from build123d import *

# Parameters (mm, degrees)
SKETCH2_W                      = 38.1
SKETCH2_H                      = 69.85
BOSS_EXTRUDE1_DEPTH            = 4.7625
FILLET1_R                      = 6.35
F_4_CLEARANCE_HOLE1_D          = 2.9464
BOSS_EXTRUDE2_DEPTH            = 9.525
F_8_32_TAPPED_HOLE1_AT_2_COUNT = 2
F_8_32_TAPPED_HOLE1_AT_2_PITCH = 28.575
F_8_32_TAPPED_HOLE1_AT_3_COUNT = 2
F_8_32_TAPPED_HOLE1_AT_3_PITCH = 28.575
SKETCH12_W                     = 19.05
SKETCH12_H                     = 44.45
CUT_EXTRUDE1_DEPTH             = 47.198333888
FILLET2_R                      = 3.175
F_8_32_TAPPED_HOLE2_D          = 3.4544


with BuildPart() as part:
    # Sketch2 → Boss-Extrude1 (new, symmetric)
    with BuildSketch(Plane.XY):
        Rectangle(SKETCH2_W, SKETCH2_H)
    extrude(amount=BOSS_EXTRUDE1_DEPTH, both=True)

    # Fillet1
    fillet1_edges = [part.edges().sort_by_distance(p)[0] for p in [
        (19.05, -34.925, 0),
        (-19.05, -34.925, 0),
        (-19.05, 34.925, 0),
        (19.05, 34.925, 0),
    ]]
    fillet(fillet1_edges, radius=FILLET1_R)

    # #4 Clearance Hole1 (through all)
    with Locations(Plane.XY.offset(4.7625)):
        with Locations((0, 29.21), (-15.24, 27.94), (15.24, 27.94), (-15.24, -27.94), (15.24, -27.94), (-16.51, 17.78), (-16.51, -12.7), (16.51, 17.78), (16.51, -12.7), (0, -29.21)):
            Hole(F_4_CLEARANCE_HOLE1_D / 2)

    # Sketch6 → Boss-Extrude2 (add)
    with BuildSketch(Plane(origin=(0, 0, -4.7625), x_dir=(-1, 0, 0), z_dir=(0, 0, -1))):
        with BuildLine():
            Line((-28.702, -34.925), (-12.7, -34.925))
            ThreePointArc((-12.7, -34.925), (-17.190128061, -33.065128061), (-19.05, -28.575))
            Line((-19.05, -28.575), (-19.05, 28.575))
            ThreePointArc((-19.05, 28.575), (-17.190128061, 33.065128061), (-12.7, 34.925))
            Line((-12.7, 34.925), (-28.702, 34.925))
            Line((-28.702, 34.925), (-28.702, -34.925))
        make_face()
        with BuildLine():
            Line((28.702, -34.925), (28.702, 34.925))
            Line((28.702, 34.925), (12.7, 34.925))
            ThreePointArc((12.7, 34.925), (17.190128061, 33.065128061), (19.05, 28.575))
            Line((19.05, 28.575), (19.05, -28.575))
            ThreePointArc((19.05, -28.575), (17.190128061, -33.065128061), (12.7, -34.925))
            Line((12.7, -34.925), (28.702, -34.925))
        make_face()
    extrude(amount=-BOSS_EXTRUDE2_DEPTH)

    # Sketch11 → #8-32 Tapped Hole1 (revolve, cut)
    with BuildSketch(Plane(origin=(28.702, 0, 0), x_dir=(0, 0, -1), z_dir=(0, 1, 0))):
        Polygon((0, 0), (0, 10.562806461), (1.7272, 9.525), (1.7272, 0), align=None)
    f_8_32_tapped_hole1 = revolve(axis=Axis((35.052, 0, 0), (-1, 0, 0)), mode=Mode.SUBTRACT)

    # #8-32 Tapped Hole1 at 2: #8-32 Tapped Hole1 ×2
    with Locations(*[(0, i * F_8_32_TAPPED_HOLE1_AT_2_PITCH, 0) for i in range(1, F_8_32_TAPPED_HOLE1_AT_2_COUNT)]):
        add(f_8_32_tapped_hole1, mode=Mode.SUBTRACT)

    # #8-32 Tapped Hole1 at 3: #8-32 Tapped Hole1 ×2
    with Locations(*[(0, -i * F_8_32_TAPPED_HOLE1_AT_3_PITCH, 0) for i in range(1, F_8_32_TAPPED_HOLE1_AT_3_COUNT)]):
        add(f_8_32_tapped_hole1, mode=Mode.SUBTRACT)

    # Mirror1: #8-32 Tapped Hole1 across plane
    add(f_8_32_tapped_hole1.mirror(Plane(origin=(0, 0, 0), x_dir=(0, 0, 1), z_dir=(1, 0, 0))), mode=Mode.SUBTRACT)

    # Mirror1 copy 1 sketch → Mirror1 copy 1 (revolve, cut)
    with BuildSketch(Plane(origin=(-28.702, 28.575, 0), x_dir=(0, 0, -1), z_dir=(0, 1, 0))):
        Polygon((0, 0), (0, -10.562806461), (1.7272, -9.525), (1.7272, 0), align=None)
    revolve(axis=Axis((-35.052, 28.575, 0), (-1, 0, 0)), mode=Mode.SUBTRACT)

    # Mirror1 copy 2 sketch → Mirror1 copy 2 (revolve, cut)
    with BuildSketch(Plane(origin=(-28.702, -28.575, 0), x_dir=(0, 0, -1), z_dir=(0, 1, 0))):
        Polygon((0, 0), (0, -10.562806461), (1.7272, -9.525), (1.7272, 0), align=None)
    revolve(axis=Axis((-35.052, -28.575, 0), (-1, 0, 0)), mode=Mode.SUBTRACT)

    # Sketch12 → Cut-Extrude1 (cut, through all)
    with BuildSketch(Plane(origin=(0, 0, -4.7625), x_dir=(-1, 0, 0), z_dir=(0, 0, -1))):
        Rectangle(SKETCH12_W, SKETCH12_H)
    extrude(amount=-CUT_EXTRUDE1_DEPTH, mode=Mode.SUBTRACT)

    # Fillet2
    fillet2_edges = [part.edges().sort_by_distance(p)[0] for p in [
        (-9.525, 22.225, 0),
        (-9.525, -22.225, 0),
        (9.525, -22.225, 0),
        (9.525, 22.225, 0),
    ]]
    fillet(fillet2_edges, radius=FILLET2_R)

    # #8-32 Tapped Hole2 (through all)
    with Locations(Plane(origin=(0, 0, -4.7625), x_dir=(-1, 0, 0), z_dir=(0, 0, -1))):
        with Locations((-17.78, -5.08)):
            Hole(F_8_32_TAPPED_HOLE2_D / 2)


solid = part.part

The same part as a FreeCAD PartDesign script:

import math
import FreeCAD as App
import Part
import Sketcher
Q = App.Units.Quantity


def edges_at(feature, points):
    """Names of the edges that pass closest to the given points."""
    edges = feature.Shape.Edges
    near = lambda p: min(range(len(edges)), key=lambda i: edges[i].distToShape(Part.Vertex(*p))[0])
    return sorted({f"Edge{near(p) + 1}" for p in points})

doc = App.newDocument("Part")
body = doc.addObject("PartDesign::Body", "Body")

sketch1 = doc.addObject("Sketcher::SketchObject", "Sketch")
body.addObject(sketch1)
sketch1.AttachmentSupport = (doc.XY_Plane, [""])
sketch1.MapMode = "FlatFace"
sketch1.addGeometry(Part.LineSegment(App.Vector(-19, 35, 0), App.Vector(-19, -35, 0)), False)
sketch1.addGeometry(Part.LineSegment(App.Vector(-19, -35, 0), App.Vector(19, -35, 0)), False)
sketch1.addGeometry(Part.LineSegment(App.Vector(19, -35, 0), App.Vector(19, 35, 0)), False)
sketch1.addGeometry(Part.LineSegment(App.Vector(19, 35, 0), App.Vector(-19, 35, 0)), False)
sketch1.addConstraint(Sketcher.Constraint("Coincident", 0, 2, 1, 1))
sketch1.addConstraint(Sketcher.Constraint("Coincident", 1, 2, 2, 1))
sketch1.addConstraint(Sketcher.Constraint("Coincident", 2, 2, 3, 1))
sketch1.addConstraint(Sketcher.Constraint("Coincident", 3, 2, 0, 1))
sketch1.addConstraint(Sketcher.Constraint("Vertical", 0))
sketch1.addConstraint(Sketcher.Constraint("Horizontal", 1))
sketch1.addConstraint(Sketcher.Constraint("Vertical", 2))
sketch1.addConstraint(Sketcher.Constraint("Horizontal", 3))
sketch1.addConstraint(Sketcher.Constraint("Symmetric", 0, 2, 2, 2, -1, 1))
sketch1.addConstraint(Sketcher.Constraint("DistanceX", 1, 1, 1, 2, Q("1.5 in")))
sketch1.addConstraint(Sketcher.Constraint("DistanceY", 0, 2, 0, 1, Q("2.75 in")))
pad1 = doc.addObject("PartDesign::Pad", "Pad")
body.addObject(pad1)
pad1.Profile = sketch1
pad1.Length = Q("0.375 in")
pad1.Midplane = True
doc.recompute()

fillet = doc.addObject("PartDesign::Fillet", "Fillet")
body.addObject(fillet)
fillet.Base = (pad1, edges_at(pad1, [
    (19.05, -34.925, 0),
    (-19.05, -34.925, 0),
    (-19.05, 34.925, 0),
    (19.05, 34.925, 0),
]))
fillet.Radius = Q("0.25 in")

sketch2 = doc.addObject("Sketcher::SketchObject", "Sketch001")
body.addObject(sketch2)
sketch2.AttachmentSupport = (doc.XY_Plane, [""])
sketch2.MapMode = "FlatFace"
sketch2.AttachmentOffset = App.Placement(App.Vector(0, 0, 0.1875 * 25.4), App.Rotation())
sketch2.addGeometry(Part.Circle(App.Vector(0, 29.2, 0), App.Vector(0, 0, 1), 1.5), False)
sketch2.addGeometry(Part.Circle(App.Vector(-15.2, 27.9, 0), App.Vector(0, 0, 1), 1.5), False)
sketch2.addGeometry(Part.Circle(App.Vector(15.2, 27.9, 0), App.Vector(0, 0, 1), 1.5), False)
sketch2.addGeometry(Part.Circle(App.Vector(-15.2, -27.9, 0), App.Vector(0, 0, 1), 1.5), False)
sketch2.addGeometry(Part.Circle(App.Vector(15.2, -27.9, 0), App.Vector(0, 0, 1), 1.5), False)
sketch2.addGeometry(Part.Circle(App.Vector(-16.5, 17.8, 0), App.Vector(0, 0, 1), 1.5), False)
sketch2.addGeometry(Part.Circle(App.Vector(-16.5, -12.7, 0), App.Vector(0, 0, 1), 1.5), False)
sketch2.addGeometry(Part.Circle(App.Vector(16.5, 17.8, 0), App.Vector(0, 0, 1), 1.5), False)
sketch2.addGeometry(Part.Circle(App.Vector(16.5, -12.7, 0), App.Vector(0, 0, 1), 1.5), False)
sketch2.addGeometry(Part.Circle(App.Vector(0, -29.2, 0), App.Vector(0, 0, 1), 1.5), False)
sketch2.addConstraint(Sketcher.Constraint("Equal", 0, 1))
sketch2.addConstraint(Sketcher.Constraint("Equal", 1, 2))
sketch2.addConstraint(Sketcher.Constraint("Equal", 2, 3))
sketch2.addConstraint(Sketcher.Constraint("Equal", 3, 4))
sketch2.addConstraint(Sketcher.Constraint("Equal", 4, 5))
sketch2.addConstraint(Sketcher.Constraint("Equal", 5, 6))
sketch2.addConstraint(Sketcher.Constraint("Equal", 6, 7))
sketch2.addConstraint(Sketcher.Constraint("Equal", 7, 8))
sketch2.addConstraint(Sketcher.Constraint("Equal", 8, 9))
sketch2.addConstraint(Sketcher.Constraint("Symmetric", 2, 3, 3, 3, -1, 1))
sketch2.addConstraint(Sketcher.Constraint("Symmetric", 1, 3, 4, 3, -1, 1))
sketch2.addConstraint(Sketcher.Constraint("Symmetric", 0, 3, 9, 3, -1, 1))
sketch2.addConstraint(Sketcher.Constraint("Symmetric", 1, 3, 2, 3, -2))
sketch2.addConstraint(Sketcher.Constraint("Symmetric", 5, 3, 7, 3, -2))
sketch2.addConstraint(Sketcher.Constraint("Symmetric", 6, 3, 8, 3, -2))
sketch2.addConstraint(Sketcher.Constraint("PointOnObject", 0, 3, -2))
sketch2.addConstraint(Sketcher.Constraint("Vertical", 5, 3, 6, 3))
sketch2.addConstraint(Sketcher.Constraint("Diameter", 0, Q("0.116 in")))
sketch2.addConstraint(Sketcher.Constraint("DistanceX", 1, 3, -1, 1, Q("0.6 in")))
sketch2.addConstraint(Sketcher.Constraint("DistanceY", -1, 1, 1, 3, Q("1.1 in")))
sketch2.addConstraint(Sketcher.Constraint("DistanceY", -1, 1, 5, 3, Q("0.7 in")))
sketch2.addConstraint(Sketcher.Constraint("DistanceY", 6, 3, -1, 1, Q("0.5 in")))
sketch2.addConstraint(Sketcher.Constraint("DistanceX", 5, 3, 7, 3, Q("1.3 in")))
sketch2.addConstraint(Sketcher.Constraint("DistanceY", -1, 1, 0, 3, Q("1.15 in")))
doc.recompute()
hole = doc.addObject("PartDesign::Hole", "Hole")
body.addObject(hole)
hole.Profile = sketch2
hole.ThreadType = "None"
hole.Diameter = Q("0.116 in")
hole.DepthType = "ThroughAll"

sketch3 = doc.addObject("Sketcher::SketchObject", "Sketch002")
body.addObject(sketch3)
sketch3.AttachmentSupport = (doc.XY_Plane, [""])
sketch3.MapMode = "FlatFace"
sketch3.AttachmentOffset = App.Placement(App.Vector(0, 0, -0.1875 * 25.4), App.Rotation())
sketch3.addGeometry(Part.LineSegment(App.Vector(29, -35, 0), App.Vector(13, -35, 0)), False)
sketch3.addGeometry(Part.ArcOfCircle(Part.Circle(App.Vector(13, -29, 0), App.Vector(0, 0, 1), 6), math.radians(-90), math.radians(0)), False)
sketch3.addGeometry(Part.LineSegment(App.Vector(19, -29, 0), App.Vector(19, 29, 0)), False)
sketch3.addGeometry(Part.ArcOfCircle(Part.Circle(App.Vector(13, 29, 0), App.Vector(0, 0, 1), 6), math.radians(0), math.radians(90)), False)
sketch3.addGeometry(Part.LineSegment(App.Vector(13, 35, 0), App.Vector(29, 35, 0)), False)
sketch3.addGeometry(Part.LineSegment(App.Vector(29, 35, 0), App.Vector(29, -35, 0)), False)
sketch3.addGeometry(Part.LineSegment(App.Vector(-29, -35, 0), App.Vector(-29, 35, 0)), False)
sketch3.addGeometry(Part.LineSegment(App.Vector(-29, 35, 0), App.Vector(-13, 35, 0)), False)
sketch3.addGeometry(Part.ArcOfCircle(Part.Circle(App.Vector(-13, 29, 0), App.Vector(0, 0, 1), 6), math.radians(90), math.radians(180)), False)
sketch3.addGeometry(Part.LineSegment(App.Vector(-19, 29, 0), App.Vector(-19, -29, 0)), False)
sketch3.addGeometry(Part.ArcOfCircle(Part.Circle(App.Vector(-13, -29, 0), App.Vector(0, 0, 1), 6), math.radians(180), math.radians(270)), False)
sketch3.addGeometry(Part.LineSegment(App.Vector(-13, -35, 0), App.Vector(-29, -35, 0)), False)
sketch3.addConstraint(Sketcher.Constraint("Tangent", 0, 2, 1, 1))
sketch3.addConstraint(Sketcher.Constraint("Tangent", 1, 2, 2, 1))
sketch3.addConstraint(Sketcher.Constraint("Tangent", 2, 2, 3, 1))
sketch3.addConstraint(Sketcher.Constraint("Tangent", 3, 2, 4, 1))
sketch3.addConstraint(Sketcher.Constraint("Coincident", 4, 2, 5, 1))
sketch3.addConstraint(Sketcher.Constraint("Coincident", 5, 2, 0, 1))
sketch3.addConstraint(Sketcher.Constraint("Coincident", 6, 2, 7, 1))
sketch3.addConstraint(Sketcher.Constraint("Tangent", 7, 2, 8, 1))
sketch3.addConstraint(Sketcher.Constraint("Tangent", 8, 2, 9, 1))
sketch3.addConstraint(Sketcher.Constraint("Tangent", 9, 2, 10, 1))
sketch3.addConstraint(Sketcher.Constraint("Tangent", 10, 2, 11, 1))
sketch3.addConstraint(Sketcher.Constraint("Coincident", 11, 2, 6, 1))
sketch3.addConstraint(Sketcher.Constraint("Horizontal", 0))
sketch3.addConstraint(Sketcher.Constraint("Vertical", 2))
sketch3.addConstraint(Sketcher.Constraint("Horizontal", 4))
sketch3.addConstraint(Sketcher.Constraint("Vertical", 5))
sketch3.addConstraint(Sketcher.Constraint("Vertical", 6))
sketch3.addConstraint(Sketcher.Constraint("Horizontal", 7))
sketch3.addConstraint(Sketcher.Constraint("Vertical", 9))
sketch3.addConstraint(Sketcher.Constraint("Horizontal", 11))
sketch3.addConstraint(Sketcher.Constraint("Equal", 1, 3))
sketch3.addConstraint(Sketcher.Constraint("Equal", 3, 8))
sketch3.addConstraint(Sketcher.Constraint("Equal", 8, 10))
sketch3.addConstraint(Sketcher.Constraint("Symmetric", 1, 3, 8, 3, -1, 1))
sketch3.addConstraint(Sketcher.Constraint("Symmetric", 4, 2, 11, 2, -1, 1))
sketch3.addConstraint(Sketcher.Constraint("Horizontal", 3, 3, 8, 3))
sketch3.addConstraint(Sketcher.Constraint("Radius", 1, Q("0.25 in")))
sketch3.addConstraint(Sketcher.Constraint("DistanceX", 8, 3, 3, 3, Q("1 in")))
sketch3.addConstraint(Sketcher.Constraint("DistanceX", 0, 2, 0, 1, Q("0.63 in")))
sketch3.addConstraint(Sketcher.Constraint("DistanceY", 2, 1, 2, 2, Q("2.25 in")))
pad2 = doc.addObject("PartDesign::Pad", "Pad001")
body.addObject(pad2)
pad2.Profile = sketch3
pad2.Length = Q("0.375 in")

sketch4 = doc.addObject("Sketcher::SketchObject", "Sketch003")
body.addObject(sketch4)
sketch4.AttachmentSupport = (doc.XZ_Plane, [""])
sketch4.MapMode = "FlatFace"
sketch4.addGeometry(Part.LineSegment(App.Vector(18.1, 0, 0), App.Vector(28.7, 0, 0)), False)
sketch4.addGeometry(Part.LineSegment(App.Vector(28.7, 0, 0), App.Vector(28.7, -1.7, 0)), False)
sketch4.addGeometry(Part.LineSegment(App.Vector(28.7, -1.7, 0), App.Vector(19.2, -1.7, 0)), False)
sketch4.addGeometry(Part.LineSegment(App.Vector(19.2, -1.7, 0), App.Vector(18.1, 0, 0)), False)
sketch4.addConstraint(Sketcher.Constraint("Coincident", 0, 2, 1, 1))
sketch4.addConstraint(Sketcher.Constraint("Coincident", 1, 2, 2, 1))
sketch4.addConstraint(Sketcher.Constraint("Coincident", 2, 2, 3, 1))
sketch4.addConstraint(Sketcher.Constraint("Coincident", 3, 2, 0, 1))
sketch4.addConstraint(Sketcher.Constraint("Horizontal", 0))
sketch4.addConstraint(Sketcher.Constraint("Vertical", 1))
sketch4.addConstraint(Sketcher.Constraint("Horizontal", 2))
sketch4.addConstraint(Sketcher.Constraint("PointOnObject", 0, 2, -1))
sketch4.addConstraint(Sketcher.Constraint("Angle", 3, Q("121 deg")))
sketch4.addConstraint(Sketcher.Constraint("DistanceX", 2, 2, 2, 1, Q("0.375 in")))
sketch4.addConstraint(Sketcher.Constraint("DistanceY", 1, 2, 1, 1, Q("0.068 in")))
sketch4.addConstraint(Sketcher.Constraint("DistanceX", -1, 1, 0, 2, Q("1.13 in")))
groove = doc.addObject("PartDesign::Groove", "Groove")
body.addObject(groove)
groove.Profile = sketch4
groove.ReferenceAxis = (sketch4, ["H_Axis"])
groove.Angle = 360
doc.recompute()

linearpattern = doc.addObject("PartDesign::LinearPattern", "LinearPattern")
body.addObject(linearpattern)
linearpattern.Originals = [groove]
linearpattern.Direction = (doc.Y_Axis, [""])
linearpattern.Mode = "offset"
linearpattern.Offset = Q("1.125 in")
linearpattern.Occurrences = 2
body.Tip = linearpattern
doc.recompute()

linearpattern2 = doc.addObject("PartDesign::LinearPattern", "LinearPattern001")
body.addObject(linearpattern2)
linearpattern2.Originals = [groove]
linearpattern2.Direction = (doc.Y_Axis, [""])
linearpattern2.Mode = "offset"
linearpattern2.Offset = Q("1.125 in")
linearpattern2.Occurrences = 2
linearpattern2.Reversed = True
body.Tip = linearpattern2
doc.recompute()

mirrored = doc.addObject("PartDesign::Mirrored", "Mirrored")
body.addObject(mirrored)
mirrored.Originals = [groove]
mirrored.MirrorPlane = (doc.YZ_Plane, [""])
body.Tip = mirrored

sketch5 = doc.addObject("Sketcher::SketchObject", "Sketch004")
body.addObject(sketch5)
sketch5.AttachmentSupport = (doc.XZ_Plane, [""])
sketch5.MapMode = "FlatFace"
sketch5.AttachmentOffset = App.Placement(App.Vector(0, 0, -1.125 * 25.4), App.Rotation())
sketch5.addGeometry(Part.LineSegment(App.Vector(-28.7, 0, 0), App.Vector(-18.1, 0, 0)), False)
sketch5.addGeometry(Part.LineSegment(App.Vector(-18.1, 0, 0), App.Vector(-19.2, -1.7, 0)), False)
sketch5.addGeometry(Part.LineSegment(App.Vector(-19.2, -1.7, 0), App.Vector(-28.7, -1.7, 0)), False)
sketch5.addGeometry(Part.LineSegment(App.Vector(-28.7, -1.7, 0), App.Vector(-28.7, 0, 0)), False)
sketch5.addConstraint(Sketcher.Constraint("Coincident", 0, 2, 1, 1))
sketch5.addConstraint(Sketcher.Constraint("Coincident", 1, 2, 2, 1))
sketch5.addConstraint(Sketcher.Constraint("Coincident", 2, 2, 3, 1))
sketch5.addConstraint(Sketcher.Constraint("Coincident", 3, 2, 0, 1))
sketch5.addConstraint(Sketcher.Constraint("Horizontal", 0))
sketch5.addConstraint(Sketcher.Constraint("Horizontal", 2))
sketch5.addConstraint(Sketcher.Constraint("Vertical", 3))
sketch5.addConstraint(Sketcher.Constraint("PointOnObject", 0, 2, -1))
sketch5.addConstraint(Sketcher.Constraint("Angle", 1, Q("-121 deg")))
sketch5.addConstraint(Sketcher.Constraint("DistanceX", 2, 2, 2, 1, Q("0.375 in")))
sketch5.addConstraint(Sketcher.Constraint("DistanceY", 3, 1, 3, 2, Q("0.068 in")))
sketch5.addConstraint(Sketcher.Constraint("DistanceX", 2, 2, -1, 1, Q("1.13 in")))
groove2 = doc.addObject("PartDesign::Groove", "Groove001")
body.addObject(groove2)
groove2.Profile = sketch5
groove2.ReferenceAxis = (sketch5, ["H_Axis"])
groove2.Angle = 360

sketch6 = doc.addObject("Sketcher::SketchObject", "Sketch005")
body.addObject(sketch6)
sketch6.AttachmentSupport = (doc.XZ_Plane, [""])
sketch6.MapMode = "FlatFace"
sketch6.AttachmentOffset = App.Placement(App.Vector(0, 0, 1.125 * 25.4), App.Rotation())
sketch6.addGeometry(Part.LineSegment(App.Vector(-28.7, 0, 0), App.Vector(-18.1, 0, 0)), False)
sketch6.addGeometry(Part.LineSegment(App.Vector(-18.1, 0, 0), App.Vector(-19.2, -1.7, 0)), False)
sketch6.addGeometry(Part.LineSegment(App.Vector(-19.2, -1.7, 0), App.Vector(-28.7, -1.7, 0)), False)
sketch6.addGeometry(Part.LineSegment(App.Vector(-28.7, -1.7, 0), App.Vector(-28.7, 0, 0)), False)
sketch6.addConstraint(Sketcher.Constraint("Coincident", 0, 2, 1, 1))
sketch6.addConstraint(Sketcher.Constraint("Coincident", 1, 2, 2, 1))
sketch6.addConstraint(Sketcher.Constraint("Coincident", 2, 2, 3, 1))
sketch6.addConstraint(Sketcher.Constraint("Coincident", 3, 2, 0, 1))
sketch6.addConstraint(Sketcher.Constraint("Horizontal", 0))
sketch6.addConstraint(Sketcher.Constraint("Horizontal", 2))
sketch6.addConstraint(Sketcher.Constraint("Vertical", 3))
sketch6.addConstraint(Sketcher.Constraint("PointOnObject", 0, 2, -1))
sketch6.addConstraint(Sketcher.Constraint("Angle", 1, Q("-121 deg")))
sketch6.addConstraint(Sketcher.Constraint("DistanceX", 2, 2, 2, 1, Q("0.375 in")))
sketch6.addConstraint(Sketcher.Constraint("DistanceY", 3, 1, 3, 2, Q("0.068 in")))
sketch6.addConstraint(Sketcher.Constraint("DistanceX", 2, 2, -1, 1, Q("1.13 in")))
groove3 = doc.addObject("PartDesign::Groove", "Groove002")
body.addObject(groove3)
groove3.Profile = sketch6
groove3.ReferenceAxis = (sketch6, ["H_Axis"])
groove3.Angle = 360

sketch7 = doc.addObject("Sketcher::SketchObject", "Sketch006")
body.addObject(sketch7)
sketch7.AttachmentSupport = (doc.XY_Plane, [""])
sketch7.MapMode = "FlatFace"
sketch7.AttachmentOffset = App.Placement(App.Vector(0, 0, -0.1875 * 25.4), App.Rotation())
sketch7.addGeometry(Part.LineSegment(App.Vector(10, 22, 0), App.Vector(10, -22, 0)), False)
sketch7.addGeometry(Part.LineSegment(App.Vector(10, -22, 0), App.Vector(-10, -22, 0)), False)
sketch7.addGeometry(Part.LineSegment(App.Vector(-10, -22, 0), App.Vector(-10, 22, 0)), False)
sketch7.addGeometry(Part.LineSegment(App.Vector(-10, 22, 0), App.Vector(10, 22, 0)), False)
sketch7.addConstraint(Sketcher.Constraint("Coincident", 0, 2, 1, 1))
sketch7.addConstraint(Sketcher.Constraint("Coincident", 1, 2, 2, 1))
sketch7.addConstraint(Sketcher.Constraint("Coincident", 2, 2, 3, 1))
sketch7.addConstraint(Sketcher.Constraint("Coincident", 3, 2, 0, 1))
sketch7.addConstraint(Sketcher.Constraint("Vertical", 0))
sketch7.addConstraint(Sketcher.Constraint("Horizontal", 1))
sketch7.addConstraint(Sketcher.Constraint("Vertical", 2))
sketch7.addConstraint(Sketcher.Constraint("Horizontal", 3))
sketch7.addConstraint(Sketcher.Constraint("Symmetric", 0, 2, 2, 2, -1, 1))
sketch7.addConstraint(Sketcher.Constraint("DistanceX", 1, 2, 1, 1, Q("0.75 in")))
sketch7.addConstraint(Sketcher.Constraint("DistanceY", 0, 2, 0, 1, Q("1.75 in")))
pocket1 = doc.addObject("PartDesign::Pocket", "Pocket")
body.addObject(pocket1)
pocket1.Profile = sketch7
pocket1.Type = "ThroughAll"
pocket1.Reversed = True
doc.recompute()

fillet2 = doc.addObject("PartDesign::Fillet", "Fillet001")
body.addObject(fillet2)
fillet2.Base = (pocket1, edges_at(pocket1, [
    (-9.525, 22.225, 0),
    (-9.525, -22.225, 0),
    (9.525, -22.225, 0),
    (9.525, 22.225, 0),
]))
fillet2.Radius = Q("0.125 in")

sketch8 = doc.addObject("Sketcher::SketchObject", "Sketch007")
body.addObject(sketch8)
sketch8.AttachmentSupport = (doc.XY_Plane, [""])
sketch8.MapMode = "FlatFace"
sketch8.AttachmentOffset = App.Placement(App.Vector(0, 0, -0.1875 * 25.4), App.Rotation())
sketch8.addGeometry(Part.Circle(App.Vector(17.8, -5.1, 0), App.Vector(0, 0, 1), 1.7), False)
sketch8.addConstraint(Sketcher.Constraint("Diameter", 0, Q("0.136 in")))
sketch8.addConstraint(Sketcher.Constraint("DistanceX", -1, 1, 0, 3, Q("0.7 in")))
sketch8.addConstraint(Sketcher.Constraint("DistanceY", 0, 3, -1, 1, Q("0.2 in")))
doc.recompute()
hole2 = doc.addObject("PartDesign::Hole", "Hole001")
body.addObject(hole2)
hole2.Profile = sketch8
hole2.ThreadType = "None"
hole2.Diameter = Q("0.136 in")
hole2.DepthType = "ThroughAll"
hole2.Reversed = True

doc.recompute()
